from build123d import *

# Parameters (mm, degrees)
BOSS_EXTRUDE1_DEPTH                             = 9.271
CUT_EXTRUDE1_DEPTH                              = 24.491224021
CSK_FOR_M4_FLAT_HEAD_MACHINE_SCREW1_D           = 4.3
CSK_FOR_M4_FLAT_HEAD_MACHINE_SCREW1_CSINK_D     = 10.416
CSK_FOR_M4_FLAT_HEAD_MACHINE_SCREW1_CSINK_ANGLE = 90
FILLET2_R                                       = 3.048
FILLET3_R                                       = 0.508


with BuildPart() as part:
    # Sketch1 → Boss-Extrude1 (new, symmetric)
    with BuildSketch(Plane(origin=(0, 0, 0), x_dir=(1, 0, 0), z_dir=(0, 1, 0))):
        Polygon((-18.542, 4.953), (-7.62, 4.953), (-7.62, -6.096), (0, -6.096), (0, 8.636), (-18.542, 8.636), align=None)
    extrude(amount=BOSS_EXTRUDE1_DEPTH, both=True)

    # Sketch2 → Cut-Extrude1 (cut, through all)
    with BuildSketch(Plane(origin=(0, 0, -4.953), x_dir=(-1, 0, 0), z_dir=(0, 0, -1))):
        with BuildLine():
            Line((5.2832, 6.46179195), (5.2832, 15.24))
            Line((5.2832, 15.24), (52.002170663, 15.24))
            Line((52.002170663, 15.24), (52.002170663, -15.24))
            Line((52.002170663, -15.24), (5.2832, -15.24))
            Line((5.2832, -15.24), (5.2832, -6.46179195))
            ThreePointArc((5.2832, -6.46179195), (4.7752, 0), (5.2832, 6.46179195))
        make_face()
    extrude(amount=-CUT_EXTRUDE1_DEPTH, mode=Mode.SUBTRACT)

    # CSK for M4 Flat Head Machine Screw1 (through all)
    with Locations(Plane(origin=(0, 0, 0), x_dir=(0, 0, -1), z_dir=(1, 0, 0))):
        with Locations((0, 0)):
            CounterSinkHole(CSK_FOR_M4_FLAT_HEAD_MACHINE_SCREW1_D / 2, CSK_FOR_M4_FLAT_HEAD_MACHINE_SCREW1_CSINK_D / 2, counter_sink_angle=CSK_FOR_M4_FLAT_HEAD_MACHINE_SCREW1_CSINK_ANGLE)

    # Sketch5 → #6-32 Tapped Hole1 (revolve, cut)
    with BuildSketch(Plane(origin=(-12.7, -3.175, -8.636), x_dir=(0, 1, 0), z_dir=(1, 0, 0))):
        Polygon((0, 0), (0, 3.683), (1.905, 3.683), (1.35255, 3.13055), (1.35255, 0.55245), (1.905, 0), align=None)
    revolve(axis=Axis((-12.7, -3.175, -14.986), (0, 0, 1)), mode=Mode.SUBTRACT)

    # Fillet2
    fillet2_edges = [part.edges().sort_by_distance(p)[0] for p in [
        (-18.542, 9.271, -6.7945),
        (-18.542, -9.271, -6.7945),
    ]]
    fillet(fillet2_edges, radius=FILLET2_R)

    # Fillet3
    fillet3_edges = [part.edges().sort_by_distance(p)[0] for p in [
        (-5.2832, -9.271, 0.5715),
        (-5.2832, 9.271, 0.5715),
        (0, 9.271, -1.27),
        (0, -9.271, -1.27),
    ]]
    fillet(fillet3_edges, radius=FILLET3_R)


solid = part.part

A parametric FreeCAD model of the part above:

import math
import FreeCAD as App
import Part
import Sketcher
from FreeCAD import Vector
Q = App.Units.Quantity


def edges_at(feature, points):
    """Names of the edges that pass closest to the given points."""
    edges = feature.Shape.Edges
    near = lambda p: min(range(len(edges)), key=lambda i: edges[i].distToShape(Part.Vertex(*p))[0])
    return sorted({f"Edge{near(p) + 1}" for p in points})


def add_polygon(sketch, points):
    """Adds a closed chain of lines whose ends are joined by coincident constraints."""
    first, n = sketch.GeometryCount, len(points)
    for a, b in zip(points, points[1:] + points[:1]):
        sketch.addGeometry(Part.LineSegment(App.Vector(*a, 0), App.Vector(*b, 0)), False)
    for i in range(n):
        sketch.addConstraint(Sketcher.Constraint("Coincident", first + i, 2, first + (i + 1) % n, 1))

doc = App.newDocument("Part")
body = doc.addObject("PartDesign::Body", "Body")

# Sketch on XZ plane
sketch1 = body.newObject("Sketcher::SketchObject", "Sketch")
sketch1.AttachmentSupport = (doc.getObject("XZ_Plane"), [""])
sketch1.MapMode = "FlatFace"
add_polygon(sketch1, [(-18.5, -5), (-7.6, -5), (-7.6, 6.1), (0, 6.1), (0, -8.6), (-18.5, -8.6)])  # lines 0-5
sketch1.addConstraint(Sketcher.Constraint("Horizontal", 0))
sketch1.addConstraint(Sketcher.Constraint("Vertical", 1))
sketch1.addConstraint(Sketcher.Constraint("Horizontal", 2))
sketch1.addConstraint(Sketcher.Constraint("Vertical", 3))
sketch1.addConstraint(Sketcher.Constraint("Horizontal", 4))
sketch1.addConstraint(Sketcher.Constraint("Vertical", 5))
sketch1.addConstraint(Sketcher.Constraint("PointOnObject", 2, 2, -2))
sketch1.addConstraint(Sketcher.Constraint("DistanceX", 2, 1, 2, 2, Q("0.3 in")))
sketch1.addConstraint(Sketcher.Constraint("DistanceX", 0, 1, 0, 2, Q("0.43 in")))
sketch1.addConstraint(Sketcher.Constraint("DistanceY", 3, 2, 3, 1, Q("0.58 in")))
sketch1.addConstraint(Sketcher.Constraint("DistanceY", 1, 1, 1, 2, Q("0.435 in")))
sketch1.addConstraint(Sketcher.Constraint("DistanceY", -1, 1, 1, 2, Q("0.24 in")))
pad1 = body.newObject("PartDesign::Pad", "Pad")
pad1.Profile = sketch1
pad1.Length = Q("0.73 in")
pad1.Midplane = True

# Sketch on XY plane
sketch2 = body.newObject("Sketcher::SketchObject", "Sketch001")
sketch2.AttachmentSupport = (doc.getObject("XY_Plane"), [""])
sketch2.MapMode = "FlatFace"
sketch2.AttachmentOffset = App.Placement(Vector(0, 0, -0.195 * 25.4), App.Rotation())
sketch2.addGeometry(Part.LineSegment(Vector(-5, 15, 0), Vector(-5, 6, 0)), False)
sketch2.addGeometry(Part.ArcOfCircle(Part.Circle(Vector(-46, 0, 0), Vector(0, 0, 1), 41), math.radians(-8.99), math.radians(8.99)), False)
sketch2.addGeometry(Part.LineSegment(Vector(-5, -6, 0), Vector(-5, -15, 0)), False)
sketch2.addGeometry(Part.LineSegment(Vector(-5, -15, 0), Vector(-52, -15, 0)), False)
sketch2.addGeometry(Part.LineSegment(Vector(-52, -15, 0), Vector(-52, 15, 0)), False)
sketch2.addGeometry(Part.LineSegment(Vector(-52, 15, 0), Vector(-5, 15, 0)), False)
sketch2.addConstraint(Sketcher.Constraint("Coincident", 0, 2, 1, 2))
sketch2.addConstraint(Sketcher.Constraint("Coincident", 1, 1, 2, 1))
sketch2.addConstraint(Sketcher.Constraint("Coincident", 2, 2, 3, 1))
sketch2.addConstraint(Sketcher.Constraint("Coincident", 3, 2, 4, 1))
sketch2.addConstraint(Sketcher.Constraint("Coincident", 4, 2, 5, 1))
sketch2.addConstraint(Sketcher.Constraint("Coincident", 5, 2, 0, 1))
sketch2.addConstraint(Sketcher.Constraint("Vertical", 0))
sketch2.addConstraint(Sketcher.Constraint("Vertical", 2))
sketch2.addConstraint(Sketcher.Constraint("Horizontal", 3))
sketch2.addConstraint(Sketcher.Constraint("Vertical", 4))
sketch2.addConstraint(Sketcher.Constraint("Horizontal", 5))
sketch2.addConstraint(Sketcher.Constraint("Symmetric", 0, 2, 1, 1, -1))
sketch2.addConstraint(Sketcher.Constraint("Equal", 0, 2))
sketch2.addConstraint(Sketcher.Constraint("DistanceY", 4, 1, 4, 2, Q("1.2 in")))
sketch2.addConstraint(Sketcher.Constraint("Radius", 1, Q("1.628 in")))
sketch2.addConstraint(Sketcher.Constraint("DistanceX", 1, 3, -1, 1, Q("1.816 in")))
sketch2.addConstraint(Sketcher.Constraint("DistanceX", 0, 2, -1, 1, Q("0.208 in")))
sketch2.addConstraint(Sketcher.Constraint("DistanceX", 3, 2, 3, 1, Q("46.718971 mm")))
pocket1 = body.newObject("PartDesign::Pocket", "Pocket")
pocket1.Profile = sketch2
pocket1.Type = "ThroughAll"
pocket1.Reversed = True

# Sketch on YZ plane
sketch3 = body.newObject("Sketcher::SketchObject", "Sketch002")
sketch3.AttachmentSupport = (doc.getObject("YZ_Plane"), [""])
sketch3.MapMode = "FlatFace"
sketch3.addGeometry(Part.Circle(Vector(0, 0, 0), Vector(0, 0, 1), 2.1), False)
sketch3.addConstraint(Sketcher.Constraint("Coincident", 0, 3, -1, 1))
sketch3.addConstraint(Sketcher.Constraint("Diameter", 0, Q("4.3 mm")))
doc.recompute()
hole = body.newObject("PartDesign::Hole", "Hole")
hole.Profile = sketch3
hole.ThreadType = "None"
hole.Diameter = 4.3
hole.DepthType = "ThroughAll"
hole.HoleCutType = "Countersink"
hole.HoleCutDiameter = 10.416
hole.HoleCutCountersinkAngle = 90

# Sketch on YZ plane
sketch4 = body.newObject("Sketcher::SketchObject", "Sketch003")
sketch4.AttachmentSupport = (doc.getObject("YZ_Plane"), [""])
sketch4.MapMode = "FlatFace"
sketch4.AttachmentOffset = App.Placement(Vector(0, 0, -0.5 * 25.4), App.Rotation())
add_polygon(sketch4, [(-3.2, -5), (-3.2, -8.6), (-1.3, -8.6), (-1.8, -8.1), (-1.8, -5.5), (-1.3, -5)])  # lines 0-5
sketch4.addGeometry(Part.LineSegment(Vector(-3.2, -8.6, 0), Vector(-3.2, -5, 0)), True)  # axis
sketch4.addConstraint(Sketcher.Constraint("Vertical", 0))
sketch4.addConstraint(Sketcher.Constraint("Horizontal", 1))
sketch4.addConstraint(Sketcher.Constraint("Vertical", 3))
sketch4.addConstraint(Sketcher.Constraint("Horizontal", 5))
sketch4.addConstraint(Sketcher.Constraint("Vertical", 6))
sketch4.addConstraint(Sketcher.Constraint("Coincident", 6, 1, 0, 2))
sketch4.addConstraint(Sketcher.Constraint("Perpendicular", 2, 4))
sketch4.addConstraint(Sketcher.Constraint("Horizontal", 4, 2, 6, 2))
sketch4.addConstraint(Sketcher.Constraint("Vertical", 1, 2, 4, 2))
sketch4.addConstraint(Sketcher.Constraint("Equal", 2, 4))
sketch4.addConstraint(Sketcher.Constraint("DistanceX", 1, 1, 1, 2, Q("0.075 in")))
sketch4.addConstraint(Sketcher.Constraint("DistanceY", 0, 2, 0, 1, Q("0.145 in")))
sketch4.addConstraint(Sketcher.Constraint("DistanceY", 0, 2, -1, 1, Q("0.34 in")))
sketch4.addConstraint(Sketcher.Constraint("DistanceX", 1, 2, -1, 1, Q("0.05 in")))
sketch4.addConstraint(Sketcher.Constraint("DistanceY", 3, 1, 3, 2, Q("0.1015 in")))
groove = body.newObject("PartDesign::Groove", "Groove")
groove.Profile = sketch4
groove.ReferenceAxis = (sketch4, ["Axis0"])
groove.Angle = 360
doc.recompute()

fillet = body.newObject("PartDesign::Fillet", "Fillet")
fillet.Base = (groove, edges_at(groove, [(-18.542, 9.271, -6.795), (-18.542, -9.271, -6.795)]))
fillet.Radius = Q("0.12 in")
doc.recompute()

fillet2 = body.newObject("PartDesign::Fillet", "Fillet001")
fillet2.Base = (fillet, edges_at(fillet, [
    (-5.283, -9.271, 0.572),
    (-5.283, 9.271, 0.572),
    (0, 9.271, -1.27),
    (0, -9.271, -1.27),
]))
fillet2.Radius = Q("0.02 in")

doc.recompute()
